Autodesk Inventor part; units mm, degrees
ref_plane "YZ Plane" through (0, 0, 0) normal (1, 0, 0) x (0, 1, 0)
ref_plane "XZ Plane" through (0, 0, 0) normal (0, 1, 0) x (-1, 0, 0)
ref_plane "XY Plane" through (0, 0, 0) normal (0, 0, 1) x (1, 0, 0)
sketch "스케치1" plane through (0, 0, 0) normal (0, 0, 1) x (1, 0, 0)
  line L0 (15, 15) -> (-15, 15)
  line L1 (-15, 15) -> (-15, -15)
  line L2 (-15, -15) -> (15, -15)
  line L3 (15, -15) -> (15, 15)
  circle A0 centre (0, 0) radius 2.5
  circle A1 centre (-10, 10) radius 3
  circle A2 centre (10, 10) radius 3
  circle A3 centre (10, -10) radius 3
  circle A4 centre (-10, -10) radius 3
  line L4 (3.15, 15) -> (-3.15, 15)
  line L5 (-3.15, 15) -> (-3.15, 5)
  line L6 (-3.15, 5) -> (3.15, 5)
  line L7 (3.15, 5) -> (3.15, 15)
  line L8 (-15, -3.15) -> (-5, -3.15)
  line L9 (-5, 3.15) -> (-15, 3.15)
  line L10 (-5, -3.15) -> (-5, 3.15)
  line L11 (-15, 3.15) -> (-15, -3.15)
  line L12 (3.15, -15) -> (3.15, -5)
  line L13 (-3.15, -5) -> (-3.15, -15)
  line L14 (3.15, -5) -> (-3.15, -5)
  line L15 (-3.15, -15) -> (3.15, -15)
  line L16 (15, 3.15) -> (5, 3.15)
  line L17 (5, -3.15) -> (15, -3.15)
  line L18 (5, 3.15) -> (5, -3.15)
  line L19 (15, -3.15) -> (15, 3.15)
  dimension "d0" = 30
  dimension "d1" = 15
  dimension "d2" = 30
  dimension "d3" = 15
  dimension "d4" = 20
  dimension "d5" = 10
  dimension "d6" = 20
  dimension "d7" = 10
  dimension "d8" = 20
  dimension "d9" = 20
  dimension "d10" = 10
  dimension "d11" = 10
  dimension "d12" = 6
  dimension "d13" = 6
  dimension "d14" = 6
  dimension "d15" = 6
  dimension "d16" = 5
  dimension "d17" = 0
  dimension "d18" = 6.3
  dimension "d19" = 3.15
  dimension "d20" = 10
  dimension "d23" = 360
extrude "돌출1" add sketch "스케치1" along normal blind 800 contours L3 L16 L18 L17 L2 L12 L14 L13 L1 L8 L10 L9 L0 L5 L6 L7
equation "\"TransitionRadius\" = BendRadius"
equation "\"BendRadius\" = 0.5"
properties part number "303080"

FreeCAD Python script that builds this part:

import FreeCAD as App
import Part
import Sketcher
Q = App.Units.Quantity

doc = App.newDocument("Part")
params = doc.addObject("Spreadsheet::Sheet", "Params")
for row, (alias, value) in enumerate([
    ("sketch1_diameter", "6 mm"),
    ("sketch1_diameter2", "5 mm"),
    ("sketch1_width", "10 mm"),
    ("sketch1_width2", "6.3 mm"),
    ("pad1_length", "800 mm"),
], start=1):
    params.set(f"A{row}", alias)
    params.set(f"B{row}", "=" + value)
    params.setAlias(f"B{row}", alias)

body = doc.addObject("PartDesign::Body", "Body")

sketch1 = doc.addObject("Sketcher::SketchObject", "Sketch")
body.addObject(sketch1)
sketch1.AttachmentSupport = (doc.XY_Plane, [""])
sketch1.MapMode = "FlatFace"
sketch1.addGeometry(Part.LineSegment(App.Vector(15, 3.1, 0), App.Vector(15, 15, 0)), False)
sketch1.addGeometry(Part.LineSegment(App.Vector(15, 15, 0), App.Vector(3.1, 15, 0)), False)
sketch1.addGeometry(Part.LineSegment(App.Vector(3.1, 15, 0), App.Vector(3.1, 5, 0)), False)
sketch1.addGeometry(Part.LineSegment(App.Vector(3.1, 5, 0), App.Vector(-3.1, 5, 0)), False)
sketch1.addGeometry(Part.LineSegment(App.Vector(-3.1, 5, 0), App.Vector(-3.1, 15, 0)), False)
sketch1.addGeometry(Part.LineSegment(App.Vector(-3.1, 15, 0), App.Vector(-15, 15, 0)), False)
sketch1.addGeometry(Part.LineSegment(App.Vector(-15, 15, 0), App.Vector(-15, 3.1, 0)), False)
sketch1.addGeometry(Part.LineSegment(App.Vector(-15, 3.1, 0), App.Vector(-5, 3.1, 0)), False)
sketch1.addGeometry(Part.LineSegment(App.Vector(-5, 3.1, 0), App.Vector(-5, -3.1, 0)), False)
sketch1.addGeometry(Part.LineSegment(App.Vector(-5, -3.1, 0), App.Vector(-15, -3.1, 0)), False)
sketch1.addGeometry(Part.LineSegment(App.Vector(-15, -3.1, 0), App.Vector(-15, -15, 0)), False)
sketch1.addGeometry(Part.LineSegment(App.Vector(-15, -15, 0), App.Vector(-3.1, -15, 0)), False)
sketch1.addGeometry(Part.LineSegment(App.Vector(-3.1, -15, 0), App.Vector(-3.1, -5, 0)), False)
sketch1.addGeometry(Part.LineSegment(App.Vector(-3.1, -5, 0), App.Vector(3.1, -5, 0)), False)
sketch1.addGeometry(Part.LineSegment(App.Vector(3.1, -5, 0), App.Vector(3.1, -15, 0)), False)
sketch1.addGeometry(Part.LineSegment(App.Vector(3.1, -15, 0), App.Vector(15, -15, 0)), False)
sketch1.addGeometry(Part.LineSegment(App.Vector(15, -15, 0), App.Vector(15, -3.1, 0)), False)
sketch1.addGeometry(Part.LineSegment(App.Vector(15, -3.1, 0), App.Vector(5, -3.1, 0)), False)
sketch1.addGeometry(Part.LineSegment(App.Vector(5, -3.1, 0), App.Vector(5, 3.1, 0)), False)
sketch1.addGeometry(Part.LineSegment(App.Vector(5, 3.1, 0), App.Vector(15, 3.1, 0)), False)
sketch1.addGeometry(Part.Circle(App.Vector(-10, -10, 0), App.Vector(0, 0, 1), 3), False)
sketch1.addGeometry(Part.Circle(App.Vector(10, -10, 0), App.Vector(0, 0, 1), 3), False)
sketch1.addGeometry(Part.Circle(App.Vector(-10, 10, 0), App.Vector(0, 0, 1), 3), False)
sketch1.addGeometry(Part.Circle(App.Vector(0, 0, 0), App.Vector(0, 0, 1), 2.5), False)
sketch1.addGeometry(Part.Circle(App.Vector(10, 10, 0), App.Vector(0, 0, 1), 3), False)
sketch1.addConstraint(Sketcher.Constraint("Coincident", 0, 2, 1, 1))
sketch1.addConstraint(Sketcher.Constraint("Coincident", 1, 2, 2, 1))
sketch1.addConstraint(Sketcher.Constraint("Coincident", 2, 2, 3, 1))
sketch1.addConstraint(Sketcher.Constraint("Coincident", 3, 2, 4, 1))
sketch1.addConstraint(Sketcher.Constraint("Coincident", 4, 2, 5, 1))
sketch1.addConstraint(Sketcher.Constraint("Coincident", 5, 2, 6, 1))
sketch1.addConstraint(Sketcher.Constraint("Coincident", 6, 2, 7, 1))
sketch1.addConstraint(Sketcher.Constraint("Coincident", 7, 2, 8, 1))
sketch1.addConstraint(Sketcher.Constraint("Coincident", 8, 2, 9, 1))
sketch1.addConstraint(Sketcher.Constraint("Coincident", 9, 2, 10, 1))
sketch1.addConstraint(Sketcher.Constraint("Coincident", 10, 2, 11, 1))
sketch1.addConstraint(Sketcher.Constraint("Coincident", 11, 2, 12, 1))
sketch1.addConstraint(Sketcher.Constraint("Coincident", 12, 2, 13, 1))
sketch1.addConstraint(Sketcher.Constraint("Coincident", 13, 2, 14, 1))
sketch1.addConstraint(Sketcher.Constraint("Coincident", 14, 2, 15, 1))
sketch1.addConstraint(Sketcher.Constraint("Coincident", 15, 2, 16, 1))
sketch1.addConstraint(Sketcher.Constraint("Coincident", 16, 2, 17, 1))
sketch1.addConstraint(Sketcher.Constraint("Coincident", 17, 2, 18, 1))
sketch1.addConstraint(Sketcher.Constraint("Coincident", 18, 2, 19, 1))
sketch1.addConstraint(Sketcher.Constraint("Coincident", 19, 2, 0, 1))
sketch1.addConstraint(Sketcher.Constraint("Vertical", 0))
sketch1.addConstraint(Sketcher.Constraint("Horizontal", 1))
sketch1.addConstraint(Sketcher.Constraint("Vertical", 2))
sketch1.addConstraint(Sketcher.Constraint("Horizontal", 3))
sketch1.addConstraint(Sketcher.Constraint("Vertical", 4))
sketch1.addConstraint(Sketcher.Constraint("Horizontal", 5))
sketch1.addConstraint(Sketcher.Constraint("Vertical", 6))
sketch1.addConstraint(Sketcher.Constraint("Horizontal", 7))
sketch1.addConstraint(Sketcher.Constraint("Vertical", 8))
sketch1.addConstraint(Sketcher.Constraint("Horizontal", 9))
sketch1.addConstraint(Sketcher.Constraint("Vertical", 10))
sketch1.addConstraint(Sketcher.Constraint("Horizontal", 11))
sketch1.addConstraint(Sketcher.Constraint("Vertical", 12))
sketch1.addConstraint(Sketcher.Constraint("Horizontal", 13))
sketch1.addConstraint(Sketcher.Constraint("Vertical", 14))
sketch1.addConstraint(Sketcher.Constraint("Horizontal", 15))
sketch1.addConstraint(Sketcher.Constraint("Vertical", 16))
sketch1.addConstraint(Sketcher.Constraint("Horizontal", 17))
sketch1.addConstraint(Sketcher.Constraint("Vertical", 18))
sketch1.addConstraint(Sketcher.Constraint("Horizontal", 19))
sketch1.addConstraint(Sketcher.Constraint("Coincident", 23, 3, -1, 1))
sketch1.addConstraint(Sketcher.Constraint("Equal", 20, 21))
sketch1.addConstraint(Sketcher.Constraint("Equal", 21, 22))
sketch1.addConstraint(Sketcher.Constraint("Equal", 22, 24))
sketch1.addConstraint(Sketcher.Constraint("Symmetric", 21, 3, 22, 3, -1, 1))
sketch1.addConstraint(Sketcher.Constraint("Symmetric", 20, 3, 24, 3, -1, 1))
sketch1.addConstraint(Sketcher.Constraint("Symmetric", 0, 2, 10, 2, -1, 1))
sketch1.addConstraint(Sketcher.Constraint("Symmetric", 2, 2, 12, 2, -1, 1))
sketch1.addConstraint(Sketcher.Constraint("Symmetric", 4, 2, 14, 2, -1, 1))
sketch1.addConstraint(Sketcher.Constraint("Symmetric", 6, 2, 16, 2, -1, 1))
sketch1.addConstraint(Sketcher.Constraint("Symmetric", 8, 2, 18, 2, -1, 1))
sketch1.addConstraint(Sketcher.Constraint("Symmetric", 20, 3, 21, 3, -2))
sketch1.addConstraint(Sketcher.Constraint("Symmetric", 1, 2, 4, 2, -2))
sketch1.addConstraint(Sketcher.Constraint("Symmetric", 9, 2, 16, 2, -2))
sketch1.addConstraint(Sketcher.Constraint("Equal", 15, 0))
sketch1.addConstraint(Sketcher.Constraint("Equal", 19, 2))
sketch1.addConstraint(Sketcher.Constraint("Equal", 13, 8))
sketch1.addConstraint(Sketcher.Constraint("Diameter", 20, Q("6 mm")))
sketch1.addConstraint(Sketcher.Constraint("Diameter", 23, Q("5 mm")))
sketch1.addConstraint(Sketcher.Constraint("DistanceX", 7, 1, 7, 2, Q("10 mm")))
sketch1.addConstraint(Sketcher.Constraint("DistanceX", 3, 2, 3, 1, Q("6.3 mm")))
sketch1.addConstraint(Sketcher.Constraint("DistanceX", 20, 3, -1, 1, Q("10 mm")))
sketch1.addConstraint(Sketcher.Constraint("DistanceY", 20, 3, -1, 1, Q("10 mm")))
sketch1.addConstraint(Sketcher.Constraint("DistanceX", -1, 1, 0, 2, Q("15 mm")))
sketch1.setExpression("Constraints[57]", "Params.sketch1_diameter")
sketch1.setExpression("Constraints[58]", "Params.sketch1_diameter2")
sketch1.setExpression("Constraints[59]", "Params.sketch1_width")
sketch1.setExpression("Constraints[60]", "Params.sketch1_width2")
pad1 = doc.addObject("PartDesign::Pad", "Pad")
body.addObject(pad1)
pad1.Profile = sketch1
pad1.setExpression("Length", "Params.pad1_length")

doc.recompute()
